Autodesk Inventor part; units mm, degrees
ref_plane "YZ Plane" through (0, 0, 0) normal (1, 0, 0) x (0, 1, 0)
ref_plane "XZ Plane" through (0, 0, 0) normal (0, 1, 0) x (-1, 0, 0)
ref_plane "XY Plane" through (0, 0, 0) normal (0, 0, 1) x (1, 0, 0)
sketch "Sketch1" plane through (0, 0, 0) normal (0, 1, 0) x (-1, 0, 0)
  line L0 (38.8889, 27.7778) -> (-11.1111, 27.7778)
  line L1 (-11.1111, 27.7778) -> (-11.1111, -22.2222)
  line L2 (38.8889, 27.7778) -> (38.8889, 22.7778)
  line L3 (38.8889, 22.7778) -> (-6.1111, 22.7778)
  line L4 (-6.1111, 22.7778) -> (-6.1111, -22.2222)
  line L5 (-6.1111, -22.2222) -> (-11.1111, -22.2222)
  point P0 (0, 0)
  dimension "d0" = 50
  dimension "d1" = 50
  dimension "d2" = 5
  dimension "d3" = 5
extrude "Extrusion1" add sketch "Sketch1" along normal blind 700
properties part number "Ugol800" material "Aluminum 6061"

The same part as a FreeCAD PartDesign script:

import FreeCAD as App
import Part
import Sketcher
Q = App.Units.Quantity

doc = App.newDocument("Part")
body = doc.addObject("PartDesign::Body", "Body")

sketch1 = body.newObject("Sketcher::SketchObject", "Sketch")
sketch1.AttachmentSupport = (doc.getObject("XZ_Plane"), [""])
sketch1.MapMode = "FlatFace"
sketch1.addGeometry([
    Part.LineSegment(App.Vector(-39, 23, 0), App.Vector(-39, 28, 0)),
    Part.LineSegment(App.Vector(-39, 28, 0), App.Vector(11, 28, 0)),
    Part.LineSegment(App.Vector(11, 28, 0), App.Vector(11, -22, 0)),
    Part.LineSegment(App.Vector(11, -22, 0), App.Vector(6, -22, 0)),
    Part.LineSegment(App.Vector(6, -22, 0), App.Vector(6, 23, 0)),
    Part.LineSegment(App.Vector(6, 23, 0), App.Vector(-39, 23, 0)),
], False)
sketch1.addConstraint([
    Sketcher.Constraint("Coincident", 0, 2, 1, 1),
    Sketcher.Constraint("Coincident", 1, 2, 2, 1),
    Sketcher.Constraint("Coincident", 2, 2, 3, 1),
    Sketcher.Constraint("Coincident", 3, 2, 4, 1),
    Sketcher.Constraint("Coincident", 4, 2, 5, 1),
    Sketcher.Constraint("Coincident", 5, 2, 0, 1),
    Sketcher.Constraint("Vertical", 0),
    Sketcher.Constraint("Horizontal", 1),
    Sketcher.Constraint("Vertical", 2),
    Sketcher.Constraint("Horizontal", 3),
    Sketcher.Constraint("Vertical", 4),
    Sketcher.Constraint("Horizontal", 5),
    Sketcher.Constraint("Equal", 3, 0),
    Sketcher.Constraint("Equal", 1, 2),
    Sketcher.Constraint("DistanceX", 1, 1, 1, 2, Q("50 mm")),
    Sketcher.Constraint("DistanceX", 3, 2, 3, 1, Q("5 mm")),
    Sketcher.Constraint("DistanceX", 0, 2, -1, 1, Q("38.889 mm")),
    Sketcher.Constraint("DistanceY", -1, 1, 0, 2, Q("27.7778 mm")),
])
pad1 = body.newObject("PartDesign::Pad", "Pad")
pad1.Profile = sketch1
pad1.Length = 700
pad1.Reversed = True

doc.recompute()
